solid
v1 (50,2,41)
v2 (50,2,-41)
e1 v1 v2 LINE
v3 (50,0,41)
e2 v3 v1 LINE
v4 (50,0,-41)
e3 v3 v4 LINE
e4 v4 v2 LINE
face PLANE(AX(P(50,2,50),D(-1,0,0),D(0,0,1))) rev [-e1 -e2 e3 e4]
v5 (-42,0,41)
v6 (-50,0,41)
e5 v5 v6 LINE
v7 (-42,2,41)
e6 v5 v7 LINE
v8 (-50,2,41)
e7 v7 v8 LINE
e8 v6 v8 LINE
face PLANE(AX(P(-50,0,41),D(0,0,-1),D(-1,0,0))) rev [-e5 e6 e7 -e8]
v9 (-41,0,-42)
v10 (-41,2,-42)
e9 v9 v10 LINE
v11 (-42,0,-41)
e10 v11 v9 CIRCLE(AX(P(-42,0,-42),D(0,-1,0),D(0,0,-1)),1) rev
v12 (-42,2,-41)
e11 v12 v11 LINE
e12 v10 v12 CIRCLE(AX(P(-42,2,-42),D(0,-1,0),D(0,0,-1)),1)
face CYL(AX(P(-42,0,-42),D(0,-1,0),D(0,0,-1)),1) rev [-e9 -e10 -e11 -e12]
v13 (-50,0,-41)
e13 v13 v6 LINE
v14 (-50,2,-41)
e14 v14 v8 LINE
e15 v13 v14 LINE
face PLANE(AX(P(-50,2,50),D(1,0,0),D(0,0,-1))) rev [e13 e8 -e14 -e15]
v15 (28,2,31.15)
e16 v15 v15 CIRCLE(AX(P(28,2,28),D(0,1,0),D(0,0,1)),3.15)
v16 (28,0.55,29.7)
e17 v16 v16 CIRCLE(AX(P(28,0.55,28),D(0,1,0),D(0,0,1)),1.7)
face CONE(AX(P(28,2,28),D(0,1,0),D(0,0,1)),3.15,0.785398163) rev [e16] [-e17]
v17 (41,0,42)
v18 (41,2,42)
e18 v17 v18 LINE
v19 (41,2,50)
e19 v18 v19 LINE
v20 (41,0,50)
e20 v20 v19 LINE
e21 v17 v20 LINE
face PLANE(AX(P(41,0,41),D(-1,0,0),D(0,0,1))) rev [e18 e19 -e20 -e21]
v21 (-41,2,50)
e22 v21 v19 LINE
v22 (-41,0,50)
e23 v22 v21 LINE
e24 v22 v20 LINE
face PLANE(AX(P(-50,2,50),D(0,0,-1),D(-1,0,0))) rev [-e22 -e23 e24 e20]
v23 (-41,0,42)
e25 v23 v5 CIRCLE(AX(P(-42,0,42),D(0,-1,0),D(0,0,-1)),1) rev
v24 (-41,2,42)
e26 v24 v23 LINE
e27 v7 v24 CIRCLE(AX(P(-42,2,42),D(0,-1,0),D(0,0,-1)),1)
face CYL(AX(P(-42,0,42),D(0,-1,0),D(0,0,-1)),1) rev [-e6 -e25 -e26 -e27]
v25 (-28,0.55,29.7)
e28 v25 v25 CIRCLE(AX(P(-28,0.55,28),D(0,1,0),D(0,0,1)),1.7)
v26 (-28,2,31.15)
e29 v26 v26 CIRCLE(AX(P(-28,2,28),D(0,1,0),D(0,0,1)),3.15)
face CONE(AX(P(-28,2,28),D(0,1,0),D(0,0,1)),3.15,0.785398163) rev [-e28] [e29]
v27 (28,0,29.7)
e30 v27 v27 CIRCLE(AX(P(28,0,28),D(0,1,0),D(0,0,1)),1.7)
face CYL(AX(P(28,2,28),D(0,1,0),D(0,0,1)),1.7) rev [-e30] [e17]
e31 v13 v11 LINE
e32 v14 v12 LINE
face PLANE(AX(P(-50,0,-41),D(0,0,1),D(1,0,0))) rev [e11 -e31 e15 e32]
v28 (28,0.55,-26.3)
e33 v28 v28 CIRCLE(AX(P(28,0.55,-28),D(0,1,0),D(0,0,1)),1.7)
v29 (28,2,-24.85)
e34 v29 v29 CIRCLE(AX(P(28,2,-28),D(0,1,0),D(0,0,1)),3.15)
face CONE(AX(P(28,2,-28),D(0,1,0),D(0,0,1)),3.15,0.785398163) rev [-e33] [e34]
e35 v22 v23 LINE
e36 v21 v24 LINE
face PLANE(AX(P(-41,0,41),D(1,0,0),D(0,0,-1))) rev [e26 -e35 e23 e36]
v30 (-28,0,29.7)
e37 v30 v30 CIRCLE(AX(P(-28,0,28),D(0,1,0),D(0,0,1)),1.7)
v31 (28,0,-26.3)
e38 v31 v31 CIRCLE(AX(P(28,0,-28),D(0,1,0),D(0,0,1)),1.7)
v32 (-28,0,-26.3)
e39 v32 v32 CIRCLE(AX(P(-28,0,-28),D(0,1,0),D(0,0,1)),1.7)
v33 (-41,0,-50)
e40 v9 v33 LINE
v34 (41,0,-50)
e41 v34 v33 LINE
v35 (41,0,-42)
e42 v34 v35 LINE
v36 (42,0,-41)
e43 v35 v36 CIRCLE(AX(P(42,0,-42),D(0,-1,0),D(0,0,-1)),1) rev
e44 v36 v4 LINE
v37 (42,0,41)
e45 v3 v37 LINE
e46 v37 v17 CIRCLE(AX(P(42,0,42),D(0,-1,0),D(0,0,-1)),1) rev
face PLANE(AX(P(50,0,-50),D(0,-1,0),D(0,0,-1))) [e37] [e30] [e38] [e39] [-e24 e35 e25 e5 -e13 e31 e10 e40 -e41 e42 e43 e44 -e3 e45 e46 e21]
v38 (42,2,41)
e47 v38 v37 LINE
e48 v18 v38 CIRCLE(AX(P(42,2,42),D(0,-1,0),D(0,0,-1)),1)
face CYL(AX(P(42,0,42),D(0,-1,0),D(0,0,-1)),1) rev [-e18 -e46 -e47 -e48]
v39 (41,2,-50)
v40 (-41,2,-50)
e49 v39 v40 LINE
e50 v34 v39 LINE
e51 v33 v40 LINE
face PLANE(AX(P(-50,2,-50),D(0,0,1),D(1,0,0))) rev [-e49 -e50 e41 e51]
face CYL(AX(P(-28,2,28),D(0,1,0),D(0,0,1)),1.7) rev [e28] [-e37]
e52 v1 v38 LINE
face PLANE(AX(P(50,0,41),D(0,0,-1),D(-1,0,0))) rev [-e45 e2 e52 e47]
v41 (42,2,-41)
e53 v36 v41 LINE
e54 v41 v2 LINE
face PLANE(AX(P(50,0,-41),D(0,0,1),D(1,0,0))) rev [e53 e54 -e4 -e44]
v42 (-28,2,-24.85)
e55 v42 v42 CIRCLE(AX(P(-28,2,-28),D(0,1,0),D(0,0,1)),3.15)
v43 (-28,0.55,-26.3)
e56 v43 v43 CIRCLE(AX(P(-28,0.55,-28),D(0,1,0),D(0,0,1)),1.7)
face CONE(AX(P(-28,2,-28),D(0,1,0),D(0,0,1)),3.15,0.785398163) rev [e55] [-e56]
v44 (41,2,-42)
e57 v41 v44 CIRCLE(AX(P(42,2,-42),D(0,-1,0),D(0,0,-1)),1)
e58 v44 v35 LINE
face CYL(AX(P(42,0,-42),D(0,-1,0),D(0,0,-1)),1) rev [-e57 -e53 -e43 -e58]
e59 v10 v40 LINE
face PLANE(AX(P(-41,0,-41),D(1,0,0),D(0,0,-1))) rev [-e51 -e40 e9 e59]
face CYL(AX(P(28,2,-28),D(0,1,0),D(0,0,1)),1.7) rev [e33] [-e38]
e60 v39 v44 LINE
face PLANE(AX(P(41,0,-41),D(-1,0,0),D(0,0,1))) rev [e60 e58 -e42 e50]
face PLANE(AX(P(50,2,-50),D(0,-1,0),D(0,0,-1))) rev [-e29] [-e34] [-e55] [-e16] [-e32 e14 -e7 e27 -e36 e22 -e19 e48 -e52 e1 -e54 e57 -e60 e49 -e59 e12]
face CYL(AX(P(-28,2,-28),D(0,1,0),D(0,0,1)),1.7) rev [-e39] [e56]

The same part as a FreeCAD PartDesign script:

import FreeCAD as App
import Part
import Sketcher

V = App.Vector
Q = App.Units.Quantity


def edges_at(feature, points):
    """Names of the edges that pass closest to the given points."""
    edges = feature.Shape.Edges
    near = lambda p: min(range(len(edges)), key=lambda i: edges[i].distToShape(Part.Vertex(*p))[0])
    return sorted({f"Edge{near(p) + 1}" for p in points})

doc = App.newDocument("Part")
body = doc.addObject("PartDesign::Body", "Body")

# Sketch on XZ plane
sketch1 = body.newObject("Sketcher::SketchObject", "Sketch")
sketch1.AttachmentSupport = (doc.getObject("XZ_Plane"), [""])
sketch1.MapMode = "FlatFace"
sketch1.addGeometry(Part.LineSegment(V(-50, -50, 0), V(-50, 50, 0)), False)
sketch1.addGeometry(Part.LineSegment(V(-50, 50, 0), V(50, 50, 0)), False)
sketch1.addGeometry(Part.LineSegment(V(50, 50, 0), V(50, -50, 0)), False)
sketch1.addGeometry(Part.LineSegment(V(50, -50, 0), V(-50, -50, 0)), False)
sketch1.addConstraint(Sketcher.Constraint("Coincident", 0, 2, 1, 1))
sketch1.addConstraint(Sketcher.Constraint("Coincident", 1, 2, 2, 1))
sketch1.addConstraint(Sketcher.Constraint("Coincident", 2, 2, 3, 1))
sketch1.addConstraint(Sketcher.Constraint("Coincident", 3, 2, 0, 1))
sketch1.addConstraint(Sketcher.Constraint("Vertical", 0))
sketch1.addConstraint(Sketcher.Constraint("Horizontal", 1))
sketch1.addConstraint(Sketcher.Constraint("Vertical", 2))
sketch1.addConstraint(Sketcher.Constraint("Horizontal", 3))
sketch1.addConstraint(Sketcher.Constraint("Symmetric", 0, 2, 2, 2, -1, 1))
sketch1.addConstraint(Sketcher.Constraint("Equal", 3, 0))
sketch1.addConstraint(Sketcher.Constraint("DistanceX", 1, 1, 1, 2, Q("100 mm")))
pad1 = body.newObject("PartDesign::Pad", "Pad")
pad1.Profile = sketch1
pad1.Length = 2
pad1.Reversed = True

# Sketch on XZ plane
sketch2 = body.newObject("Sketcher::SketchObject", "Sketch001")
sketch2.AttachmentSupport = (doc.getObject("XZ_Plane"), [""])
sketch2.MapMode = "FlatFace"
sketch2.AttachmentOffset = App.Placement(V(0, 0, -2), App.Rotation())
sketch2.addGeometry(Part.LineSegment(V(41, -50, 0), V(41, -41, 0)), False)
sketch2.addGeometry(Part.LineSegment(V(41, -41, 0), V(50, -41, 0)), False)
sketch2.addGeometry(Part.LineSegment(V(50, -41, 0), V(50, -50, 0)), False)
sketch2.addGeometry(Part.LineSegment(V(50, -50, 0), V(41, -50, 0)), False)
sketch2.addGeometry(Part.LineSegment(V(-50, -50, 0), V(-50, -41, 0)), False)
sketch2.addGeometry(Part.LineSegment(V(-50, -41, 0), V(-41, -41, 0)), False)
sketch2.addGeometry(Part.LineSegment(V(-41, -41, 0), V(-41, -50, 0)), False)
sketch2.addGeometry(Part.LineSegment(V(-41, -50, 0), V(-50, -50, 0)), False)
sketch2.addGeometry(Part.LineSegment(V(-50, 41, 0), V(-50, 50, 0)), False)
sketch2.addGeometry(Part.LineSegment(V(-50, 50, 0), V(-41, 50, 0)), False)
sketch2.addGeometry(Part.LineSegment(V(-41, 50, 0), V(-41, 41, 0)), False)
sketch2.addGeometry(Part.LineSegment(V(-41, 41, 0), V(-50, 41, 0)), False)
sketch2.addGeometry(Part.LineSegment(V(41, 41, 0), V(41, 50, 0)), False)
sketch2.addGeometry(Part.LineSegment(V(41, 50, 0), V(50, 50, 0)), False)
sketch2.addGeometry(Part.LineSegment(V(50, 50, 0), V(50, 41, 0)), False)
sketch2.addGeometry(Part.LineSegment(V(50, 41, 0), V(41, 41, 0)), False)
sketch2.addConstraint(Sketcher.Constraint("Coincident", 0, 2, 1, 1))
sketch2.addConstraint(Sketcher.Constraint("Coincident", 1, 2, 2, 1))
sketch2.addConstraint(Sketcher.Constraint("Coincident", 2, 2, 3, 1))
sketch2.addConstraint(Sketcher.Constraint("Coincident", 3, 2, 0, 1))
sketch2.addConstraint(Sketcher.Constraint("Coincident", 4, 2, 5, 1))
sketch2.addConstraint(Sketcher.Constraint("Coincident", 5, 2, 6, 1))
sketch2.addConstraint(Sketcher.Constraint("Coincident", 6, 2, 7, 1))
sketch2.addConstraint(Sketcher.Constraint("Coincident", 7, 2, 4, 1))
sketch2.addConstraint(Sketcher.Constraint("Coincident", 8, 2, 9, 1))
sketch2.addConstraint(Sketcher.Constraint("Coincident", 9, 2, 10, 1))
sketch2.addConstraint(Sketcher.Constraint("Coincident", 10, 2, 11, 1))
sketch2.addConstraint(Sketcher.Constraint("Coincident", 11, 2, 8, 1))
sketch2.addConstraint(Sketcher.Constraint("Coincident", 12, 2, 13, 1))
sketch2.addConstraint(Sketcher.Constraint("Coincident", 13, 2, 14, 1))
sketch2.addConstraint(Sketcher.Constraint("Coincident", 14, 2, 15, 1))
sketch2.addConstraint(Sketcher.Constraint("Coincident", 15, 2, 12, 1))
sketch2.addConstraint(Sketcher.Constraint("Vertical", 0))
sketch2.addConstraint(Sketcher.Constraint("Horizontal", 1))
sketch2.addConstraint(Sketcher.Constraint("Vertical", 2))
sketch2.addConstraint(Sketcher.Constraint("Horizontal", 3))
sketch2.addConstraint(Sketcher.Constraint("Vertical", 4))
sketch2.addConstraint(Sketcher.Constraint("Horizontal", 5))
sketch2.addConstraint(Sketcher.Constraint("Vertical", 6))
sketch2.addConstraint(Sketcher.Constraint("Horizontal", 7))
sketch2.addConstraint(Sketcher.Constraint("Vertical", 8))
sketch2.addConstraint(Sketcher.Constraint("Horizontal", 9))
sketch2.addConstraint(Sketcher.Constraint("Vertical", 10))
sketch2.addConstraint(Sketcher.Constraint("Horizontal", 11))
sketch2.addConstraint(Sketcher.Constraint("Vertical", 12))
sketch2.addConstraint(Sketcher.Constraint("Horizontal", 13))
sketch2.addConstraint(Sketcher.Constraint("Vertical", 14))
sketch2.addConstraint(Sketcher.Constraint("Horizontal", 15))
sketch2.addConstraint(Sketcher.Constraint("Symmetric", 2, 2, 8, 2, -1, 1))
sketch2.addConstraint(Sketcher.Constraint("Symmetric", 0, 2, 10, 2, -1, 1))
sketch2.addConstraint(Sketcher.Constraint("Symmetric", 6, 2, 12, 2, -1, 1))
sketch2.addConstraint(Sketcher.Constraint("Symmetric", 4, 2, 14, 2, -1, 1))
sketch2.addConstraint(Sketcher.Constraint("Symmetric", 1, 2, 4, 2, -2))
sketch2.addConstraint(Sketcher.Constraint("Symmetric", 3, 2, 6, 2, -2))
sketch2.addConstraint(Sketcher.Constraint("Equal", 15, 0))
sketch2.addConstraint(Sketcher.Constraint("DistanceX", 1, 1, 1, 2, Q("9 mm")))
sketch2.addConstraint(Sketcher.Constraint("DistanceX", -1, 1, 0, 2, Q("41 mm")))
sketch2.addConstraint(Sketcher.Constraint("DistanceY", 0, 2, -1, 1, Q("41 mm")))
pocket1 = body.newObject("PartDesign::Pocket", "Pocket")
pocket1.Profile = sketch2
pocket1.Type = "ThroughAll"
pocket1.Reversed = True

# Sketch on YZ plane
sketch3 = body.newObject("Sketcher::SketchObject", "Sketch002")
sketch3.AttachmentSupport = (doc.getObject("YZ_Plane"), [""])
sketch3.MapMode = "FlatFace"
sketch3.AttachmentOffset = App.Placement(V(0, 0, -28), App.Rotation())
sketch3.addGeometry(Part.LineSegment(V(0, 28, 0), V(2, 28, 0)), False)
sketch3.addGeometry(Part.LineSegment(V(2, 28, 0), V(2, 31.15, 0)), False)
sketch3.addGeometry(Part.LineSegment(V(2, 31.15, 0), V(0.55, 29.7, 0)), False)
sketch3.addGeometry(Part.LineSegment(V(0.55, 29.7, 0), V(0, 29.7, 0)), False)
sketch3.addGeometry(Part.LineSegment(V(0, 29.7, 0), V(0, 28, 0)), False)
sketch3.addGeometry(Part.LineSegment(V(2, 28, 0), V(0, 28, 0)), True)  # axis
sketch3.addConstraint(Sketcher.Constraint("Coincident", 0, 2, 1, 1))
sketch3.addConstraint(Sketcher.Constraint("Coincident", 1, 2, 2, 1))
sketch3.addConstraint(Sketcher.Constraint("Coincident", 2, 2, 3, 1))
sketch3.addConstraint(Sketcher.Constraint("Coincident", 3, 2, 4, 1))
sketch3.addConstraint(Sketcher.Constraint("Coincident", 4, 2, 0, 1))
sketch3.addConstraint(Sketcher.Constraint("Horizontal", 0))
sketch3.addConstraint(Sketcher.Constraint("Vertical", 1))
sketch3.addConstraint(Sketcher.Constraint("Horizontal", 3))
sketch3.addConstraint(Sketcher.Constraint("Vertical", 4))
sketch3.addConstraint(Sketcher.Constraint("Horizontal", 5))
sketch3.addConstraint(Sketcher.Constraint("Coincident", 5, 1, 0, 2))
sketch3.addConstraint(Sketcher.Constraint("PointOnObject", 3, 2, -2))
sketch3.addConstraint(Sketcher.Constraint("PointOnObject", 5, 2, -2))
sketch3.addConstraint(Sketcher.Constraint("DistanceX", 0, 1, 0, 2, Q("2 mm")))
sketch3.addConstraint(Sketcher.Constraint("Angle", 2, Q("-135 deg")))
sketch3.addConstraint(Sketcher.Constraint("DistanceY", 4, 2, 4, 1, Q("1.7 mm")))
sketch3.addConstraint(Sketcher.Constraint("DistanceY", -1, 1, 0, 2, Q("28 mm")))
sketch3.addConstraint(Sketcher.Constraint("DistanceX", 3, 2, 3, 1, Q("0.55 mm")))
groove = body.newObject("PartDesign::Groove", "Groove")
groove.Profile = sketch3
groove.ReferenceAxis = (sketch3, ["Axis0"])
groove.Angle = 360
doc.recompute()

linearpattern = body.newObject("PartDesign::LinearPattern", "LinearPattern")
linearpattern.Originals = [groove]
linearpattern.Direction = (doc.getObject("Z_Axis"), [""])
linearpattern.Mode = "offset"
linearpattern.Offset = 56
linearpattern.Occurrences = 2
linearpattern.Reversed = True
body.Tip = linearpattern
doc.recompute()

datumline = body.newObject("PartDesign::Line", "DatumLine")
datumline.Placement = App.Placement(V(0, 0, 0), App.Rotation(V(0, 0, 1), V(0.707106781, 0, -0.707106781)))
linearpattern2 = body.newObject("PartDesign::LinearPattern", "LinearPattern001")
linearpattern2.Originals = [groove]
linearpattern2.Direction = (datumline, [""])
linearpattern2.Mode = "offset"
linearpattern2.Offset = 79.195959
linearpattern2.Occurrences = 2
body.Tip = linearpattern2
doc.recompute()

linearpattern3 = body.newObject("PartDesign::LinearPattern", "LinearPattern002")
linearpattern3.Originals = [groove]
linearpattern3.Direction = (doc.getObject("X_Axis"), [""])
linearpattern3.Mode = "offset"
linearpattern3.Offset = 56
linearpattern3.Occurrences = 2
body.Tip = linearpattern3
doc.recompute()

fillet = body.newObject("PartDesign::Fillet", "Fillet")
fillet.Base = (linearpattern3, edges_at(linearpattern3, [
    (41, 1, -41),
    (-41, 1, -41),
    (-41, 1, 41),
    (41, 1, 41),
]))
fillet.Radius = 1

doc.recompute()
